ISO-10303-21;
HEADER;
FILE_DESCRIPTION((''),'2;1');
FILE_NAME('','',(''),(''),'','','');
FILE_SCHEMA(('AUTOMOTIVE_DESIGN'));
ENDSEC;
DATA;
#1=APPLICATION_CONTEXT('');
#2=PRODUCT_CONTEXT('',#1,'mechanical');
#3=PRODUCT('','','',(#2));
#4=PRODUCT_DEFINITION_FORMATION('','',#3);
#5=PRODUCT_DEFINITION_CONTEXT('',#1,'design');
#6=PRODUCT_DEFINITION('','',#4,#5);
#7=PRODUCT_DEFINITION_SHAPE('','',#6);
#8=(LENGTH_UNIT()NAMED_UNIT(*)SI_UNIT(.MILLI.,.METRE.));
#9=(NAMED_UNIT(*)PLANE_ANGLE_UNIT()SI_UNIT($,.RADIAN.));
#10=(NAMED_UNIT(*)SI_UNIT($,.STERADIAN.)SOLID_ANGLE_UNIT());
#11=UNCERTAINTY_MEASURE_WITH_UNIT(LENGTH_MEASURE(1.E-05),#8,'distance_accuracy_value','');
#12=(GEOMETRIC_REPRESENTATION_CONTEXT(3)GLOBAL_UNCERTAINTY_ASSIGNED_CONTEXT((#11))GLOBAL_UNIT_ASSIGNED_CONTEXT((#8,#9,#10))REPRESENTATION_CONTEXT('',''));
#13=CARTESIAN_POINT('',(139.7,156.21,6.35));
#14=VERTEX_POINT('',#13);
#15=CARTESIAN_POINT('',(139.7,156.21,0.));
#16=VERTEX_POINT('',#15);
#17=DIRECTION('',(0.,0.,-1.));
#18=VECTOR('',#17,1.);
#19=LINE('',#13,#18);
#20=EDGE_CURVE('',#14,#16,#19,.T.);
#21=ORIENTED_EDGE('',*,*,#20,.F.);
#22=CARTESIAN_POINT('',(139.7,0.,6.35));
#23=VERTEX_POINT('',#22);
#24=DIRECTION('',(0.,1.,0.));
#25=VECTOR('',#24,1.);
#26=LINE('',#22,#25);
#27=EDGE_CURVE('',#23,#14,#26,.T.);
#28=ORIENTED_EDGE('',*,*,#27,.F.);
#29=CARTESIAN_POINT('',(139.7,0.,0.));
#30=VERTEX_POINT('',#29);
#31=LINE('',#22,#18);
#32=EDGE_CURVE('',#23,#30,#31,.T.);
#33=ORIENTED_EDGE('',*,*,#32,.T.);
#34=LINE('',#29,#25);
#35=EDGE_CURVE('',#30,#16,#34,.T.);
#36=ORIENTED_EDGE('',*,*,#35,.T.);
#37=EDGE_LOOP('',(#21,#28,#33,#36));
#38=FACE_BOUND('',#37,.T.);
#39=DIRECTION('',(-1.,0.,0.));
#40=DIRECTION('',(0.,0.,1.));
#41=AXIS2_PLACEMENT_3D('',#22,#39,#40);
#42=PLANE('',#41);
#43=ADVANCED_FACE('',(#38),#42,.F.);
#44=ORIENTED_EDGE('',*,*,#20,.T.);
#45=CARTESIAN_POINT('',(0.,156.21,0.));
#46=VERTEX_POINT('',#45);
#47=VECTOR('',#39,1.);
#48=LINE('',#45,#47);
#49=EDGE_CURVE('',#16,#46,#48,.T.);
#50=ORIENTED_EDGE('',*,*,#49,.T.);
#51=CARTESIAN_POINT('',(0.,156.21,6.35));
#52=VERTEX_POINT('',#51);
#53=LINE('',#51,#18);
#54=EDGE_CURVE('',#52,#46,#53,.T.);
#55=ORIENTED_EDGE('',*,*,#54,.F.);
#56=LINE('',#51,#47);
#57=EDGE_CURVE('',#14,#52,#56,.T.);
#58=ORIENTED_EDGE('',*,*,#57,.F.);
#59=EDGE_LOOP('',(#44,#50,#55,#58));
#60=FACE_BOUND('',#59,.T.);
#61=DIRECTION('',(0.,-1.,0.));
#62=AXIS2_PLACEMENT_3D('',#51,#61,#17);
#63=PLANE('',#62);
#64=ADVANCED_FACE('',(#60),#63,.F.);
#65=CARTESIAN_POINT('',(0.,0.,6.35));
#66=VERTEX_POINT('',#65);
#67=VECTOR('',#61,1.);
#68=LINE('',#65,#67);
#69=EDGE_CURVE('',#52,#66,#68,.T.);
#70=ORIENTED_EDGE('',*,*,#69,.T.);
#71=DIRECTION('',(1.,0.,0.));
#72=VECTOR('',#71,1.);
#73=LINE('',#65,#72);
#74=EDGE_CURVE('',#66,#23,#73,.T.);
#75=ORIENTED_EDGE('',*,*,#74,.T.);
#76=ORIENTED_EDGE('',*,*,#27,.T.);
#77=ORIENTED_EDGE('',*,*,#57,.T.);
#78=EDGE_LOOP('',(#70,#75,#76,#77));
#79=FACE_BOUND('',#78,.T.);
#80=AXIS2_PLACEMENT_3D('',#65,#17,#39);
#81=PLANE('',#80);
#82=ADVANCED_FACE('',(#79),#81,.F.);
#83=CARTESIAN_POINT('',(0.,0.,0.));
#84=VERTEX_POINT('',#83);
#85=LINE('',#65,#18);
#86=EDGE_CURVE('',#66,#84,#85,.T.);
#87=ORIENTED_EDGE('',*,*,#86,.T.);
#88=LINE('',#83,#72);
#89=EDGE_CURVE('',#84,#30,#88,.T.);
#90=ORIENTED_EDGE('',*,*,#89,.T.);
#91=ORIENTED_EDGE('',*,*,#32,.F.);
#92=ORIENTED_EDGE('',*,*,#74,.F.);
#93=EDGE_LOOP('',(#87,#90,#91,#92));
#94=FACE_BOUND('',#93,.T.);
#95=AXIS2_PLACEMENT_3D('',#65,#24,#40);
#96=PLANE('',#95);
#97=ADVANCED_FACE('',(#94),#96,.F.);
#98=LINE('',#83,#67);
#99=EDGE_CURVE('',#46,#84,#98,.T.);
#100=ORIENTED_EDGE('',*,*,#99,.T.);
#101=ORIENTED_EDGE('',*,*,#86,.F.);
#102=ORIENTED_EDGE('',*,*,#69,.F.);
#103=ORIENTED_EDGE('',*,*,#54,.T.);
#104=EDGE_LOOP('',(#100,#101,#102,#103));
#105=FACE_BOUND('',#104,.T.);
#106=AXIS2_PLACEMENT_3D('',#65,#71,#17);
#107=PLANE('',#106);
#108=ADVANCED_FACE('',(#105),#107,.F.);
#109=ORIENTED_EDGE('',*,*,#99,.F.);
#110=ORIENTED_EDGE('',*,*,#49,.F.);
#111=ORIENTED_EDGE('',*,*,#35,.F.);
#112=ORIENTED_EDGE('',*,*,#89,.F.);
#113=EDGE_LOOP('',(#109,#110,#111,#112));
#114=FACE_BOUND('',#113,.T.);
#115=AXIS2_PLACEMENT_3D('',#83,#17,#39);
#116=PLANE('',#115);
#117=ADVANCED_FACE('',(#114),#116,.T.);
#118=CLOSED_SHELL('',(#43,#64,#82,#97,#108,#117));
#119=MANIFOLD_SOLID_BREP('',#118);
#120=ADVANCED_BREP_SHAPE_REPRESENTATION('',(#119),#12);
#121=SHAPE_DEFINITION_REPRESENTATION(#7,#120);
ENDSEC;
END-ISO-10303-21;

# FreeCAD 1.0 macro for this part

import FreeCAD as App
import Part
import Sketcher

V = App.Vector
Q = App.Units.Quantity


def add_polygon(sketch, points):
    """Adds a closed chain of lines whose ends are joined by coincident constraints."""
    first, n = sketch.GeometryCount, len(points)
    for a, b in zip(points, points[1:] + points[:1]):
        sketch.addGeometry(Part.LineSegment(App.Vector(*a, 0), App.Vector(*b, 0)), False)
    for i in range(n):
        sketch.addConstraint(Sketcher.Constraint("Coincident", first + i, 2, first + (i + 1) % n, 1))

doc = App.newDocument("Part")
body = doc.addObject("PartDesign::Body", "Body")

# Sketch on XY plane
sketch1 = body.newObject("Sketcher::SketchObject", "Sketch")
sketch1.AttachmentSupport = (doc.getObject("XY_Plane"), [""])
sketch1.MapMode = "FlatFace"
add_polygon(sketch1, [(0, 156.21), (0, 0), (139.7, 0), (139.7, 156.21)])  # lines 0-3
sketch1.addConstraint([
    Sketcher.Constraint("Vertical", 0),
    Sketcher.Constraint("Horizontal", 1),
    Sketcher.Constraint("Vertical", 2),
    Sketcher.Constraint("Horizontal", 3),
    Sketcher.Constraint("Coincident", 0, 2, -1, 1),
    Sketcher.Constraint("DistanceX", 1, 1, 1, 2, Q("5.5 in")),
    Sketcher.Constraint("DistanceY", 0, 2, 0, 1, Q("6.15 in")),
])
pad1 = body.newObject("PartDesign::Pad", "Pad")
pad1.Profile = sketch1
pad1.Length = Q("0.25 in")

doc.recompute()
